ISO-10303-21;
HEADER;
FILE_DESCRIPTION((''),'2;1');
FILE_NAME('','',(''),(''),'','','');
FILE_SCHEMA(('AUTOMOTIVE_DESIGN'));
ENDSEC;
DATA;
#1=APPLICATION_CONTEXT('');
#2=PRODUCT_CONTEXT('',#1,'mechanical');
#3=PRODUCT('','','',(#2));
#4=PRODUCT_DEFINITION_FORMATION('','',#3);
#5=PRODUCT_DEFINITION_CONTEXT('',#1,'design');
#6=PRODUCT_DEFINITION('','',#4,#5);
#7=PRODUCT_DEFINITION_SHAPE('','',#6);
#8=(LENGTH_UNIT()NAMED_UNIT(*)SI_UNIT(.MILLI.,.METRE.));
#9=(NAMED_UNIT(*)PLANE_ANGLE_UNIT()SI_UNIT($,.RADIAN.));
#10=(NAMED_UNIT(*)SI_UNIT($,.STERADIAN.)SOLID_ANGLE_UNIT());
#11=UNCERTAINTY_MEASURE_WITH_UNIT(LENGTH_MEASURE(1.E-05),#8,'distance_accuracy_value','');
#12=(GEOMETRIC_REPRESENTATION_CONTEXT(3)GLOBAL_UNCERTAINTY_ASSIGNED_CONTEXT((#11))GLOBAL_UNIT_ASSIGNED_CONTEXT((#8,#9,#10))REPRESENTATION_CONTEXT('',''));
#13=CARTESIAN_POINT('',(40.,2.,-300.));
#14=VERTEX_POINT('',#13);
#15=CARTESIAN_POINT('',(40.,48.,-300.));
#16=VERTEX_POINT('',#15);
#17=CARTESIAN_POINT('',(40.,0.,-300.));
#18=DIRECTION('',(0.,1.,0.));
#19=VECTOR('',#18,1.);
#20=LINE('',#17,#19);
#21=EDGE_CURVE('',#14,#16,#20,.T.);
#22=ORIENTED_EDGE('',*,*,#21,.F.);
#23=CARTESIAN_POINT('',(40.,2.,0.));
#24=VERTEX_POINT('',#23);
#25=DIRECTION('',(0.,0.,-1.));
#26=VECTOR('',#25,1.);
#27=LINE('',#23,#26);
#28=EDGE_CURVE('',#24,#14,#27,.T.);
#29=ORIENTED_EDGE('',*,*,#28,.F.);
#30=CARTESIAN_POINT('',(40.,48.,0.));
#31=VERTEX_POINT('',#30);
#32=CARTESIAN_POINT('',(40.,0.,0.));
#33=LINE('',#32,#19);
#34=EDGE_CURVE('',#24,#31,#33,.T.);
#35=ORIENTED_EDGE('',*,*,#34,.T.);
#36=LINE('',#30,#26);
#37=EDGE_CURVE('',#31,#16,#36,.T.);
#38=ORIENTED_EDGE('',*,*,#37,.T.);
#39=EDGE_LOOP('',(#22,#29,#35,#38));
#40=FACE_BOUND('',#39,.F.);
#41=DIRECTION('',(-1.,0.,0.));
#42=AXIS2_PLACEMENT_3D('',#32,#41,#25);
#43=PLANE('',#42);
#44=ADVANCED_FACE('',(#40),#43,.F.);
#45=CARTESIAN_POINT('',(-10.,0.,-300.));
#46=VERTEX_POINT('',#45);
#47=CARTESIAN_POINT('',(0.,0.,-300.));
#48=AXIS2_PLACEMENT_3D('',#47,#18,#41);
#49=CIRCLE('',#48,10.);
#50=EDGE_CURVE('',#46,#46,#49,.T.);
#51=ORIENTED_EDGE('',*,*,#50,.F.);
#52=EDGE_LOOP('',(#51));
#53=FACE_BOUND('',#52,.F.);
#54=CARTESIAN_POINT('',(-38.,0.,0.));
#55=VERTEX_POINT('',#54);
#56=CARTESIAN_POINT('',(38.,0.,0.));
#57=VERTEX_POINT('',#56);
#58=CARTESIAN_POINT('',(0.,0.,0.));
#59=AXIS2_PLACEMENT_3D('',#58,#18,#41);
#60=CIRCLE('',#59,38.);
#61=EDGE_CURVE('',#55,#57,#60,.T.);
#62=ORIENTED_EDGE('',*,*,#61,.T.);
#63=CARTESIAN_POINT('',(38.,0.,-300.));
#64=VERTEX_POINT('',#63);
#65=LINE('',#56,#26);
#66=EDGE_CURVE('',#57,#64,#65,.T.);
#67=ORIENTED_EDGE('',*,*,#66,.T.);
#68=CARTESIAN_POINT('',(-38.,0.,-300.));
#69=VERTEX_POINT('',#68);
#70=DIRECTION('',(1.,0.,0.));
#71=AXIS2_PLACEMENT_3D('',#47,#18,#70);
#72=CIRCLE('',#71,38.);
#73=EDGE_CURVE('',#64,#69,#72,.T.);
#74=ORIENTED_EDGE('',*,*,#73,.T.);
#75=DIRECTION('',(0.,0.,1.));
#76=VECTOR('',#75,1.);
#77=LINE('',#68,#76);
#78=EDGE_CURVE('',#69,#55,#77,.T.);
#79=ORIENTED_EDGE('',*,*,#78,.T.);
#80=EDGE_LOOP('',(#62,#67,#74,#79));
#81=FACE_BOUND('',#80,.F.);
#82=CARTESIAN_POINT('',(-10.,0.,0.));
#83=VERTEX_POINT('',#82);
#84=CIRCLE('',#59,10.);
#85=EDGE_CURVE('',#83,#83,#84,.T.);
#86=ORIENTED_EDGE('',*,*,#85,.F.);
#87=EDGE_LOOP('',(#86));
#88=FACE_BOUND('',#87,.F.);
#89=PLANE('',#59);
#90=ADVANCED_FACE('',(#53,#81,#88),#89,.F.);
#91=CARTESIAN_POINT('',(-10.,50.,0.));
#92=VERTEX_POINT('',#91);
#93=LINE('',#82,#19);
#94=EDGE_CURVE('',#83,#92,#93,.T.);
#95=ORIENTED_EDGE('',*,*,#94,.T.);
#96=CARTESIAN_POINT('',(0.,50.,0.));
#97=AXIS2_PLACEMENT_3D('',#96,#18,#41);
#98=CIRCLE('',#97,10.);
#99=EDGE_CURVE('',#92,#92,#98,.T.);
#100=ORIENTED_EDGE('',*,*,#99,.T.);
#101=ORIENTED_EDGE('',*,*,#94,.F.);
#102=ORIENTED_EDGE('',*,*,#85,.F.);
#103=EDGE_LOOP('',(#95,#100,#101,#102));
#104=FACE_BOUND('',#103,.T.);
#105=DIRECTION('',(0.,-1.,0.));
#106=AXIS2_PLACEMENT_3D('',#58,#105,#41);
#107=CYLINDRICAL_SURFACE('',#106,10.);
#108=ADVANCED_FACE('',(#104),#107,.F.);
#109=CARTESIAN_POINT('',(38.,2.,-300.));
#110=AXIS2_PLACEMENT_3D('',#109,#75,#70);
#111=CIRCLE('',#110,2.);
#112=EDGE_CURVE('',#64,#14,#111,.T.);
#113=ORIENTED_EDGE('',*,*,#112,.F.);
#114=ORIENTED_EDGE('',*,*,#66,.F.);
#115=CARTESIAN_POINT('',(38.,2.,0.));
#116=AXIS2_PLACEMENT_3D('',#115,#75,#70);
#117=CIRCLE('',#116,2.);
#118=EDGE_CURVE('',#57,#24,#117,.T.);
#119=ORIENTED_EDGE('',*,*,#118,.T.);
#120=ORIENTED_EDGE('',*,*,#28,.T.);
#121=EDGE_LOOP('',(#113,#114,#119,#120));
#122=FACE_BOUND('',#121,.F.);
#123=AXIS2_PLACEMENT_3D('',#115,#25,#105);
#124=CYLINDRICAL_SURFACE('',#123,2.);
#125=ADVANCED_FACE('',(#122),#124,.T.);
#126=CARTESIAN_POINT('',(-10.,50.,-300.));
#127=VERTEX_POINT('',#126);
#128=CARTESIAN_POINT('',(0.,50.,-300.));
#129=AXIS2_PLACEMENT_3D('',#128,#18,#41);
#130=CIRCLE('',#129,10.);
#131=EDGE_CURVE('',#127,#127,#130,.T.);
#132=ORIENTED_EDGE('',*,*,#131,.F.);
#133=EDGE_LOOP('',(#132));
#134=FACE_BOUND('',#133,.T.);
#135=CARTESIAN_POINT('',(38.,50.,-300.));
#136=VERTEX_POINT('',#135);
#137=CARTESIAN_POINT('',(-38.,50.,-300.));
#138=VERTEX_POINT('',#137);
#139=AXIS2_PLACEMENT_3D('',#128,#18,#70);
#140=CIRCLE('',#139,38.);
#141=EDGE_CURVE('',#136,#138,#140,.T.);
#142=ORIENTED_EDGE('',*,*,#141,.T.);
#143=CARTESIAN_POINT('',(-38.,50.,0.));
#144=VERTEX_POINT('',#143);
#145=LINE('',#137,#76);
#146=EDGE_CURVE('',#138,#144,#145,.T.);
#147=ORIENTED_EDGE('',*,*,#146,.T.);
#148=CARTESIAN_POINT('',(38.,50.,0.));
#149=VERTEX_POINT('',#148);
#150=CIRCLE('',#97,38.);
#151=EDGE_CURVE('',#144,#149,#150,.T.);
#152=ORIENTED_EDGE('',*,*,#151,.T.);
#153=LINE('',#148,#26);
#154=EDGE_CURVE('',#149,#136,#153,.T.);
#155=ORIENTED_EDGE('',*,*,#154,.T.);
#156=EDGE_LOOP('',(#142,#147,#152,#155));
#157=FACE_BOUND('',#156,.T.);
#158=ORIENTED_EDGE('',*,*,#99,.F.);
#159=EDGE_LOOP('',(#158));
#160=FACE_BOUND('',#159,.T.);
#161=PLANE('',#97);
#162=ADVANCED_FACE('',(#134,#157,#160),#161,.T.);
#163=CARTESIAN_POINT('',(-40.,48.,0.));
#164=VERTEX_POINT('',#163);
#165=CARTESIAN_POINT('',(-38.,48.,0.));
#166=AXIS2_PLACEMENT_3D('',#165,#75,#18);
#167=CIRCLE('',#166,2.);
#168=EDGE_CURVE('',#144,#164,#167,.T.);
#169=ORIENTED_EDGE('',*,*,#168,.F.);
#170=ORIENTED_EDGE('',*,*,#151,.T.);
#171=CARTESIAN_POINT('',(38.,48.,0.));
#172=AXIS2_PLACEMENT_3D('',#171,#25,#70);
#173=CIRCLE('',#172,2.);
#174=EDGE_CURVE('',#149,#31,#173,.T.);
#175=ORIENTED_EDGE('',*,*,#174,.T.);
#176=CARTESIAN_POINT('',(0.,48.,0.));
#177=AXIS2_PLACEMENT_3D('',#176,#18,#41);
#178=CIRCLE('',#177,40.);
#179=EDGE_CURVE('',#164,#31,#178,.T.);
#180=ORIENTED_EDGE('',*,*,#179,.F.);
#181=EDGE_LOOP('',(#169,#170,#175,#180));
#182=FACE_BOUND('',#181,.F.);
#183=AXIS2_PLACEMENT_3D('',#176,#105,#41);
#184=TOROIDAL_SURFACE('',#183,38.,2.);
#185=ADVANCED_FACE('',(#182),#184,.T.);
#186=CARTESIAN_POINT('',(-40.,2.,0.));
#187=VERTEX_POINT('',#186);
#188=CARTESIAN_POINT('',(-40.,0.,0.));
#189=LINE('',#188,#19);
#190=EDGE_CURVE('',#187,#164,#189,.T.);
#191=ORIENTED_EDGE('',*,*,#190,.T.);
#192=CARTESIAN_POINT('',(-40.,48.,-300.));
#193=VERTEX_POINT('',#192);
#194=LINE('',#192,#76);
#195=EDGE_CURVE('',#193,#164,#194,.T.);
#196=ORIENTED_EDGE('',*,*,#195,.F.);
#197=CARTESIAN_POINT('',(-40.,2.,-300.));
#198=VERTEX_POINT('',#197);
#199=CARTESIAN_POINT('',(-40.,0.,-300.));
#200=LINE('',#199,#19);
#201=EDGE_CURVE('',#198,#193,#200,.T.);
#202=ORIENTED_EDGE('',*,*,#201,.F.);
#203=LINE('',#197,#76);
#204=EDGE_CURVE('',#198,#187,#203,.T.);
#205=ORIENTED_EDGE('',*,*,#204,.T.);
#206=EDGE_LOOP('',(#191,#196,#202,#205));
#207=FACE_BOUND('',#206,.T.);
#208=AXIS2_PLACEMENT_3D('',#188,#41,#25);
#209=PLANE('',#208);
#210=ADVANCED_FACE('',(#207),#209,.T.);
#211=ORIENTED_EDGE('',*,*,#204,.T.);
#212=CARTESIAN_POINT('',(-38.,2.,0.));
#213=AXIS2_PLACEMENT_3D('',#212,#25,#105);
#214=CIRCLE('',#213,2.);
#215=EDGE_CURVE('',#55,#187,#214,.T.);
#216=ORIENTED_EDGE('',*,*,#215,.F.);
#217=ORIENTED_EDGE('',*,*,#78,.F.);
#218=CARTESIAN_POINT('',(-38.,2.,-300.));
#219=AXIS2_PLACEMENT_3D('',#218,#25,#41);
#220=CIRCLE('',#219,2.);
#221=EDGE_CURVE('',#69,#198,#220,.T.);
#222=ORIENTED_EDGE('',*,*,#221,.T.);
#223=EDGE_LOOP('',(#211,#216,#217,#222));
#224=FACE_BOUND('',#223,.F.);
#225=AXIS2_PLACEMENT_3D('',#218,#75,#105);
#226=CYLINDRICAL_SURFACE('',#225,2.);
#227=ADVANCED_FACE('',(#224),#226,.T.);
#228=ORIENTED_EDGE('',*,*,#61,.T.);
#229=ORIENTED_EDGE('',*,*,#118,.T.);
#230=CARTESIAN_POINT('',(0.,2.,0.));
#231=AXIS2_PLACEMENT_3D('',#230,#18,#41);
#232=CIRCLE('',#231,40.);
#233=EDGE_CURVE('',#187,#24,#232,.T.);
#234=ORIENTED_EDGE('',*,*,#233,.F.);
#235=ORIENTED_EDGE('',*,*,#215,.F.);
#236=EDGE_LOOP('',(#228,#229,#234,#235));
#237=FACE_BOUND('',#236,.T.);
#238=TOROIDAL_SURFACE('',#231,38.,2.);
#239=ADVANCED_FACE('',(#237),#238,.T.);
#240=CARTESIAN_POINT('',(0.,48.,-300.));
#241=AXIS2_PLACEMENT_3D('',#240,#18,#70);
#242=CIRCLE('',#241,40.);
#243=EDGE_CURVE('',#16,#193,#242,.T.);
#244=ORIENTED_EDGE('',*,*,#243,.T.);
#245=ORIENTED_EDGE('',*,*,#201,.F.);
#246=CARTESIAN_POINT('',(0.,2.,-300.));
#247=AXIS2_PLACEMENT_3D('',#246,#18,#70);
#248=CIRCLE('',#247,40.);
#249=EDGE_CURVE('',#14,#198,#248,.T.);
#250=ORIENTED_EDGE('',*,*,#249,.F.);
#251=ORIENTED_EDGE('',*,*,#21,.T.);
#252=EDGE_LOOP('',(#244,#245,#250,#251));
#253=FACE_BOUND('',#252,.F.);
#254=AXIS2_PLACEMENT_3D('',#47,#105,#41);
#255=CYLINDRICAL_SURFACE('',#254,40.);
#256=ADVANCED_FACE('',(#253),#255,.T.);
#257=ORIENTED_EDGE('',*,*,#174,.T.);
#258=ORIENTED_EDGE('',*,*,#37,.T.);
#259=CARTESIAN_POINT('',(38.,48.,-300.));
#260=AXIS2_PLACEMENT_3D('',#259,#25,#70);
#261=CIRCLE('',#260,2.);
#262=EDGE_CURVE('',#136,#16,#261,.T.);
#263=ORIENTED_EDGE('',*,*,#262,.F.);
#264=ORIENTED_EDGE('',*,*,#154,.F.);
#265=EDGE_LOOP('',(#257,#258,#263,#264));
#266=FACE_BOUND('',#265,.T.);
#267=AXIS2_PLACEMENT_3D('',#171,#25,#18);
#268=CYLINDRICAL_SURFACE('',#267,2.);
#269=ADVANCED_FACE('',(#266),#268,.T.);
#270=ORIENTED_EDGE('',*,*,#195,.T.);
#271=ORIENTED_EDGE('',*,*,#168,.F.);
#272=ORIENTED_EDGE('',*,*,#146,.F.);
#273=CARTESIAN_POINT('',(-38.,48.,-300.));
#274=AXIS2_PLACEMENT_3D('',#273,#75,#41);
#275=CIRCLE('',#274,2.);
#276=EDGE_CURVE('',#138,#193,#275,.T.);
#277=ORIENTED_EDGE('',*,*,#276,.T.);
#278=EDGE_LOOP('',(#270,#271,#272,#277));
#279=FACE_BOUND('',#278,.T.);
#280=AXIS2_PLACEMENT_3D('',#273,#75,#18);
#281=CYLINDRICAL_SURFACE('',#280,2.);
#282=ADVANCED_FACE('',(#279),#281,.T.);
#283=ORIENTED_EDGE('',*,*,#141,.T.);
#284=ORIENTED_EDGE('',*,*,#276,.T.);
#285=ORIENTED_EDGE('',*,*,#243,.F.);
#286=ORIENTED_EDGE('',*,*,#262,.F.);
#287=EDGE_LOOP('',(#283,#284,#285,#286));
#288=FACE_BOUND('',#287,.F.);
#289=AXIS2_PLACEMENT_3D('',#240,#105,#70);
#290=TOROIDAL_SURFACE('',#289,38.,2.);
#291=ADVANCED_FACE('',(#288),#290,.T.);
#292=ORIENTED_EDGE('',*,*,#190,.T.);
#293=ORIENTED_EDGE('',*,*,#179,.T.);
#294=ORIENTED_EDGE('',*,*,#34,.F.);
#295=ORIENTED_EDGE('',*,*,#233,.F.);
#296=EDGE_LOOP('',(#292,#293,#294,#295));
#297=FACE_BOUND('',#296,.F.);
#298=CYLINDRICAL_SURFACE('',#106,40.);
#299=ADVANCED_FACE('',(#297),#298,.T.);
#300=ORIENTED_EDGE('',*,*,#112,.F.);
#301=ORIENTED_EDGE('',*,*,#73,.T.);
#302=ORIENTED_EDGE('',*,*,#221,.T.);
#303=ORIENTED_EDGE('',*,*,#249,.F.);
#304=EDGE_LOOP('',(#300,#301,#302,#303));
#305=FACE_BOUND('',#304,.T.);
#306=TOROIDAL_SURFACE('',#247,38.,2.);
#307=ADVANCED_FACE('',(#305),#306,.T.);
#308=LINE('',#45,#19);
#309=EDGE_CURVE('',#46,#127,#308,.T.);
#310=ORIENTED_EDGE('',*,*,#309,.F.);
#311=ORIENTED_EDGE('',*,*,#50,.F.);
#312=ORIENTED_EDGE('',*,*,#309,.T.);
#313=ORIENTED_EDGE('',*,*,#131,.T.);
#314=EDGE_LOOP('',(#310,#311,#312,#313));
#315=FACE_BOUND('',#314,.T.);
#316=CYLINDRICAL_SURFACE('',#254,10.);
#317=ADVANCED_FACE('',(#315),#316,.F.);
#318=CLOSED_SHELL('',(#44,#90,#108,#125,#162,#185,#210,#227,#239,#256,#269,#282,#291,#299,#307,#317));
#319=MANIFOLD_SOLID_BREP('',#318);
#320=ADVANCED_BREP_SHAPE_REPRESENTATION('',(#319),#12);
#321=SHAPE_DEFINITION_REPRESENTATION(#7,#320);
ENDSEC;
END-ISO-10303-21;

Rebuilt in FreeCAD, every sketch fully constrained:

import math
import FreeCAD as App
import Part
import Sketcher
from FreeCAD import Vector


def edges_at(feature, points):
    """Names of the edges that pass closest to the given points."""
    edges = feature.Shape.Edges
    near = lambda p: min(range(len(edges)), key=lambda i: edges[i].distToShape(Part.Vertex(*p))[0])
    return sorted({f"Edge{near(p) + 1}" for p in points})

doc = App.newDocument("Part")
body = doc.addObject("PartDesign::Body", "Body")

# Sketch on XZ plane
sketch1 = doc.addObject("Sketcher::SketchObject", "Sketch")
body.addObject(sketch1)
sketch1.AttachmentSupport = (doc.XZ_Plane, [""])
sketch1.MapMode = "FlatFace"
sketch1.addGeometry(Part.ArcOfCircle(Part.Circle(Vector(0, 0, 0), Vector(0, 0, 1), 40), math.radians(0), math.radians(180)), False)
sketch1.addGeometry(Part.LineSegment(Vector(40, 0, 0), Vector(40, -300, 0)), False)
sketch1.addGeometry(Part.ArcOfCircle(Part.Circle(Vector(0, -300, 0), Vector(0, 0, 1), 40), math.radians(180), math.radians(360)), False)
sketch1.addGeometry(Part.LineSegment(Vector(-40, -300, 0), Vector(-40, 0, 0)), False)
sketch1.addGeometry(Part.Circle(Vector(0, 0, 0), Vector(0, 0, 1), 10), False)
sketch1.addGeometry(Part.Circle(Vector(0, -300, 0), Vector(0, 0, 1), 10), False)
sketch1.addConstraint(Sketcher.Constraint("Tangent", 0, 1, 1, 1))
sketch1.addConstraint(Sketcher.Constraint("Tangent", 1, 2, 2, 2))
sketch1.addConstraint(Sketcher.Constraint("Tangent", 2, 1, 3, 1))
sketch1.addConstraint(Sketcher.Constraint("Tangent", 3, 2, 0, 2))
sketch1.addConstraint(Sketcher.Constraint("Vertical", 1))
sketch1.addConstraint(Sketcher.Constraint("Vertical", 3))
sketch1.addConstraint(Sketcher.Constraint("Coincident", 0, 3, -1, 1))
sketch1.addConstraint(Sketcher.Constraint("Coincident", 4, 3, -1, 1))
sketch1.addConstraint(Sketcher.Constraint("Coincident", 5, 3, 2, 3))
sketch1.addConstraint(Sketcher.Constraint("Equal", 4, 5))
sketch1.addConstraint(Sketcher.Constraint("Diameter", 4, 20.0))
sketch1.addConstraint(Sketcher.Constraint("Radius", 0, 40.0))
sketch1.addConstraint(Sketcher.Constraint("DistanceY", 1, 2, 1, 1, 300.0))
pad1 = doc.addObject("PartDesign::Pad", "Pad")
body.addObject(pad1)
pad1.Profile = sketch1
pad1.Length = 50
pad1.Reversed = True
doc.recompute()

fillet = doc.addObject("PartDesign::Fillet", "Fillet")
body.addObject(fillet)
fillet.Base = (pad1, edges_at(pad1, [
    (0, 50, -340),
    (-40, 50, -150),
    (0, 50, 40),
    (40, 50, -150),
    (0, 0, -340),
    (-40, 0, -150),
    (0, 0, 40),
    (40, 0, -150),
]))
fillet.Radius = 2

doc.recompute()
